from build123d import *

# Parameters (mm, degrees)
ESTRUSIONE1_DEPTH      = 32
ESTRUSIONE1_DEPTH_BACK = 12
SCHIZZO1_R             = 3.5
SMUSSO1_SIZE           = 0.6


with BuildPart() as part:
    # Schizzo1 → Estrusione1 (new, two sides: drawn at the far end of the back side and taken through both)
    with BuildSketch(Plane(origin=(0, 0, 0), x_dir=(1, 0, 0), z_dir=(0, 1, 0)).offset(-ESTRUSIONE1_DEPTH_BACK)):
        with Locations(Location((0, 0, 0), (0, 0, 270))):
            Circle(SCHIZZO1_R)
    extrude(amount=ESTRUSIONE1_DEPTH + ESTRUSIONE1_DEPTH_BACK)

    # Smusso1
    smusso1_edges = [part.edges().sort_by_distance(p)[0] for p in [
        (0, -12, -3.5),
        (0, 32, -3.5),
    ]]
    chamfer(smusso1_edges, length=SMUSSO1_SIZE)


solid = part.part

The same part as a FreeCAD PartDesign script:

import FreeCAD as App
import Part
import Sketcher


def edges_at(feature, points):
    """Names of the edges that pass closest to the given points."""
    edges = feature.Shape.Edges
    near = lambda p: min(range(len(edges)), key=lambda i: edges[i].distToShape(Part.Vertex(*p))[0])
    return sorted({f"Edge{near(p) + 1}" for p in points})

doc = App.newDocument("Part")
params = doc.addObject("Spreadsheet::Sheet", "Params")
for row, (alias, value) in enumerate([
    ("sketch1_diameter", "7 mm"),
    ("pad1_length", "32 mm"),
    ("pad1_length2", "12 mm"),
    ("chamfer_size", "0.6 mm"),
], start=1):
    params.set(f"A{row}", alias)
    params.set(f"B{row}", "=" + value)
    params.setAlias(f"B{row}", alias)

body = doc.addObject("PartDesign::Body", "Body")

sketch1 = body.newObject("Sketcher::SketchObject", "Sketch")
sketch1.AttachmentSupport = (doc.getObject("XZ_Plane"), [""])
sketch1.MapMode = "FlatFace"
sketch1.addGeometry(Part.Circle(App.Vector(0, 0, 0), App.Vector(0, 0, 1), 3.5), False)
sketch1.addConstraint(Sketcher.Constraint("Coincident", 0, 3, -1, 1))
sketch1.addConstraint(Sketcher.Constraint("Diameter", 0, 7.0))
sketch1.setExpression("Constraints[1]", "Params.sketch1_diameter")
pad1 = body.newObject("PartDesign::Pad", "Pad")
pad1.Profile = sketch1
pad1.Type = "TwoLengths"
pad1.setExpression("Length", "Params.pad1_length")
pad1.setExpression("Length2", "Params.pad1_length2")
pad1.Reversed = True
doc.recompute()

chamfer = body.newObject("PartDesign::Chamfer", "Chamfer")
chamfer.Base = (pad1, edges_at(pad1, [(0, -12, -3.5), (0, 32, -3.5)]))
chamfer.setExpression("Size", "Params.chamfer_size")

doc.recompute()
